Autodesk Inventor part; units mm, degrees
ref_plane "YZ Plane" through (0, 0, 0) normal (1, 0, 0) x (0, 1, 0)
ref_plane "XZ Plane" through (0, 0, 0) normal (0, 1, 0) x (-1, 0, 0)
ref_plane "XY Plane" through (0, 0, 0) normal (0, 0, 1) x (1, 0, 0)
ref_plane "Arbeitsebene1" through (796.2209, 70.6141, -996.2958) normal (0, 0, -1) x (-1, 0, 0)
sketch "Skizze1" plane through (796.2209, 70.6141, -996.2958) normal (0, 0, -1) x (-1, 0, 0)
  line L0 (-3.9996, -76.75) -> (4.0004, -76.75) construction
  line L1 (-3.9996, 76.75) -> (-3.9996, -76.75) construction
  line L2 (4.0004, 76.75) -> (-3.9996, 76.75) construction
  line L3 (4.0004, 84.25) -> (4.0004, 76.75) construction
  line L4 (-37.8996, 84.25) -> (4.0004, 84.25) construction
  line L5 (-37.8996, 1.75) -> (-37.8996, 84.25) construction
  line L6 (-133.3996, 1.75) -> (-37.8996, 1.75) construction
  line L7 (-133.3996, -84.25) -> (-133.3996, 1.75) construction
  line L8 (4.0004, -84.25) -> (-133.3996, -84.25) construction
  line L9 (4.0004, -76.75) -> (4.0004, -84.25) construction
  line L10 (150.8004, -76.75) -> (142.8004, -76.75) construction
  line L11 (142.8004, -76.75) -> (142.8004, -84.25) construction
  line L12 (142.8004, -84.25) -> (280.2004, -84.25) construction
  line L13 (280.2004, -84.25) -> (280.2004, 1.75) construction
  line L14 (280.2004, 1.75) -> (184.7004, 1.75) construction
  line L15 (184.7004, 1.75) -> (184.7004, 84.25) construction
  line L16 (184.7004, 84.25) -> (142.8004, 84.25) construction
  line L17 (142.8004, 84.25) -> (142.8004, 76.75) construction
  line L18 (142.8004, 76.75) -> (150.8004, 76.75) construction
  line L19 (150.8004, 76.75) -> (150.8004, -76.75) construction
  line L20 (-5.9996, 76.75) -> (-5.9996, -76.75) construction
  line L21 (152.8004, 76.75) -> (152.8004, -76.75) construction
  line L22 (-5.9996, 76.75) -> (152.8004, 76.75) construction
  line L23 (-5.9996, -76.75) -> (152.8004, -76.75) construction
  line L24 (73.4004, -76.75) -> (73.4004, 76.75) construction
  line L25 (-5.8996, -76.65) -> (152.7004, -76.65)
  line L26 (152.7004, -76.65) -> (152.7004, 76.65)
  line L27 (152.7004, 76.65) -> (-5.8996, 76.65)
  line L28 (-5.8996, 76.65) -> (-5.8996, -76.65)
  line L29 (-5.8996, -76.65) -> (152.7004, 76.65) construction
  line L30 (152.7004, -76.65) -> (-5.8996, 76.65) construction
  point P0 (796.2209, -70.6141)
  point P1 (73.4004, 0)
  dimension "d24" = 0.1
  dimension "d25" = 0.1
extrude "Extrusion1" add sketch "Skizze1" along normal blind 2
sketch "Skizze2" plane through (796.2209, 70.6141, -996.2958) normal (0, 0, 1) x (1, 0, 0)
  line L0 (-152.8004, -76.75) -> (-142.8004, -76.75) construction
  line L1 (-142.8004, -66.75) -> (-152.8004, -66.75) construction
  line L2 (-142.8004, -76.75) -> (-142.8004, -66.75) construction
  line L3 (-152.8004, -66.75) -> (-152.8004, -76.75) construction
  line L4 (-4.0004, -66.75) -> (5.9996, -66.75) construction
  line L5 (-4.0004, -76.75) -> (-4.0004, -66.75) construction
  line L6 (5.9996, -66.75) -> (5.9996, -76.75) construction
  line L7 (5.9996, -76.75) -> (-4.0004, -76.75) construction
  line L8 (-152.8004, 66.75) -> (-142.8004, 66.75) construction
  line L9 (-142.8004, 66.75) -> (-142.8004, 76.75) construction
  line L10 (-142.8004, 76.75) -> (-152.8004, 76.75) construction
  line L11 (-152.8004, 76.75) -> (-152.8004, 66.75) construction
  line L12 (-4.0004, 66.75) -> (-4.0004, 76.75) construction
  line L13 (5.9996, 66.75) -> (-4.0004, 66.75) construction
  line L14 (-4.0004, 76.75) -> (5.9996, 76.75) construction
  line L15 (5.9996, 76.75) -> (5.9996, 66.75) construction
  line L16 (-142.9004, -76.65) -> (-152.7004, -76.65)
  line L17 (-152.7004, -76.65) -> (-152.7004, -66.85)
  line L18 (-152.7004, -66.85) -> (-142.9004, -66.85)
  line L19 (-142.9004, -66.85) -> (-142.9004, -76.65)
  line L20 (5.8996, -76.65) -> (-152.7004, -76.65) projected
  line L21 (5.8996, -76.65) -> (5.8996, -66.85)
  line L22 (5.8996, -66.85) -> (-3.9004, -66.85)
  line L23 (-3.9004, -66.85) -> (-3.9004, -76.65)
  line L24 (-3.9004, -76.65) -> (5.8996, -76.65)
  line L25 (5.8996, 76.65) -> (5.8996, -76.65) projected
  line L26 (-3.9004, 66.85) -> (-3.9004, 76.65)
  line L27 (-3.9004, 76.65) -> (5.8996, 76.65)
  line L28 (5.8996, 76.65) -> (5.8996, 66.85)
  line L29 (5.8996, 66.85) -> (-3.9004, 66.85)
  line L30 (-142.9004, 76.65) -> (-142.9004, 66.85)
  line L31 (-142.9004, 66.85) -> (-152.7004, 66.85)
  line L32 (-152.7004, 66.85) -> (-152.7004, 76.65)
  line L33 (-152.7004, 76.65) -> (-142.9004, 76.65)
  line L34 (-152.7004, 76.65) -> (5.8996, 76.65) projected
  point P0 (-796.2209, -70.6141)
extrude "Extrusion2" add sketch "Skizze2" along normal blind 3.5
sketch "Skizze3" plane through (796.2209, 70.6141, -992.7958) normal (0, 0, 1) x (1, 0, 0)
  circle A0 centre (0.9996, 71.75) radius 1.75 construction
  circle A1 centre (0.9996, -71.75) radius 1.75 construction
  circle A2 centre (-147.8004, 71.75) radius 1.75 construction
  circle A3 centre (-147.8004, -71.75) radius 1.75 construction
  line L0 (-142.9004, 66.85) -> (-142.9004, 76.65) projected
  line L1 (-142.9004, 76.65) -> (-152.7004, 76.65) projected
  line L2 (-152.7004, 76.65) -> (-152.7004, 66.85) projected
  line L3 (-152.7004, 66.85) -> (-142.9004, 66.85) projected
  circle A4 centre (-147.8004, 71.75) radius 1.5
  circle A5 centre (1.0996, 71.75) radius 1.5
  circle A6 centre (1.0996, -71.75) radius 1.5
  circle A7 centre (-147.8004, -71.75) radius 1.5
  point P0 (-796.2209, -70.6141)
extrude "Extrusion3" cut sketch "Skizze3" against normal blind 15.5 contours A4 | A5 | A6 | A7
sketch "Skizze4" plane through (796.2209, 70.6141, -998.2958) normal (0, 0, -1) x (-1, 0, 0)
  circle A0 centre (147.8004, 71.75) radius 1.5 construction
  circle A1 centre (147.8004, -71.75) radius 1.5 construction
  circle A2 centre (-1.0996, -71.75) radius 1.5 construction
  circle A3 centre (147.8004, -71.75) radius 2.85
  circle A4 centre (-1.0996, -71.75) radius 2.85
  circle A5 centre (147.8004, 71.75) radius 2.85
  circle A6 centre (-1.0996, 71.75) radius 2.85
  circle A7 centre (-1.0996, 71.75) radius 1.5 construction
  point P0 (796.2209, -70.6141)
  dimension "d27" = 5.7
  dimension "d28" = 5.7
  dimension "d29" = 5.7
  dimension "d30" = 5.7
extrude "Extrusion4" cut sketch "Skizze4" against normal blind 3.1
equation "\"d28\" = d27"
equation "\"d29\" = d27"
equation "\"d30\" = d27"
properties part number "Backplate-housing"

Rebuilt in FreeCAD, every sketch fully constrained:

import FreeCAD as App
import Part
import Sketcher

doc = App.newDocument("Part")
body = doc.addObject("PartDesign::Body", "Body")

# Sketch on XY plane
sketch1 = body.newObject("Sketcher::SketchObject", "Sketch")
sketch1.AttachmentSupport = (doc.getObject("XY_Plane"), [""])
sketch1.MapMode = "FlatFace"
sketch1.AttachmentOffset = App.Placement(App.Vector(0, 0, -996.2958), App.Rotation())
sketch1.addGeometry([
    Part.LineSegment(App.Vector(802, 147, 0), App.Vector(802, -6, 0)),
    Part.LineSegment(App.Vector(802, -6, 0), App.Vector(644, -6, 0)),
    Part.LineSegment(App.Vector(644, -6, 0), App.Vector(644, 147, 0)),
    Part.LineSegment(App.Vector(644, 147, 0), App.Vector(802, 147, 0)),
], False)
sketch1.addConstraint([
    Sketcher.Constraint("Coincident", 0, 2, 1, 1),
    Sketcher.Constraint("Coincident", 1, 2, 2, 1),
    Sketcher.Constraint("Coincident", 2, 2, 3, 1),
    Sketcher.Constraint("Coincident", 3, 2, 0, 1),
    Sketcher.Constraint("Vertical", 0),
    Sketcher.Constraint("Horizontal", 1),
    Sketcher.Constraint("Vertical", 2),
    Sketcher.Constraint("Horizontal", 3),
    Sketcher.Constraint("DistanceX", 1, 2, 1, 1, 158.6),
    Sketcher.Constraint("DistanceY", 0, 2, 0, 1, 153.3),
    Sketcher.Constraint("DistanceY", 0, 2, -1, 1, 6.036),
    Sketcher.Constraint("DistanceX", -1, 1, 0, 2, 802.1205),
])
pad1 = body.newObject("PartDesign::Pad", "Pad")
pad1.Profile = sketch1
pad1.Length = 2
pad1.Reversed = True

# Sketch on XY plane
sketch2 = body.newObject("Sketcher::SketchObject", "Sketch001")
sketch2.AttachmentSupport = (doc.getObject("XY_Plane"), [""])
sketch2.MapMode = "FlatFace"
sketch2.AttachmentOffset = App.Placement(App.Vector(0, 0, -996.2958), App.Rotation())
sketch2.addGeometry([
    Part.LineSegment(App.Vector(644, -6, 0), App.Vector(653, -6, 0)),  # 0
    Part.LineSegment(App.Vector(653, -6, 0), App.Vector(653, 4, 0)),  # 1
    Part.LineSegment(App.Vector(653, 4, 0), App.Vector(644, 4, 0)),  # 2
    Part.LineSegment(App.Vector(644, 4, 0), App.Vector(644, -6, 0)),  # 3
    Part.LineSegment(App.Vector(653, 137, 0), App.Vector(653, 147, 0)),  # 4
    Part.LineSegment(App.Vector(653, 147, 0), App.Vector(644, 147, 0)),  # 5
    Part.LineSegment(App.Vector(644, 147, 0), App.Vector(644, 137, 0)),  # 6
    Part.LineSegment(App.Vector(644, 137, 0), App.Vector(653, 137, 0)),  # 7
    Part.LineSegment(App.Vector(792, 137, 0), App.Vector(802, 137, 0)),  # 8
    Part.LineSegment(App.Vector(802, 137, 0), App.Vector(802, 147, 0)),  # 9
    Part.LineSegment(App.Vector(802, 147, 0), App.Vector(792, 147, 0)),  # 10
    Part.LineSegment(App.Vector(792, 147, 0), App.Vector(792, 137, 0)),  # 11
    Part.LineSegment(App.Vector(792, 4, 0), App.Vector(792, -6, 0)),  # 12
    Part.LineSegment(App.Vector(792, -6, 0), App.Vector(802, -6, 0)),  # 13
    Part.LineSegment(App.Vector(802, -6, 0), App.Vector(802, 4, 0)),  # 14
    Part.LineSegment(App.Vector(802, 4, 0), App.Vector(792, 4, 0)),  # 15
], False)
sketch2.addConstraint([
    Sketcher.Constraint("Coincident", 0, 2, 1, 1),
    Sketcher.Constraint("Coincident", 1, 2, 2, 1),
    Sketcher.Constraint("Coincident", 2, 2, 3, 1),
    Sketcher.Constraint("Coincident", 3, 2, 0, 1),
    Sketcher.Constraint("Coincident", 4, 2, 5, 1),
    Sketcher.Constraint("Coincident", 5, 2, 6, 1),
    Sketcher.Constraint("Coincident", 6, 2, 7, 1),
    Sketcher.Constraint("Coincident", 7, 2, 4, 1),
    Sketcher.Constraint("Coincident", 8, 2, 9, 1),
    Sketcher.Constraint("Coincident", 9, 2, 10, 1),
    Sketcher.Constraint("Coincident", 10, 2, 11, 1),
    Sketcher.Constraint("Coincident", 11, 2, 8, 1),
    Sketcher.Constraint("Coincident", 12, 2, 13, 1),
    Sketcher.Constraint("Coincident", 13, 2, 14, 1),
    Sketcher.Constraint("Coincident", 14, 2, 15, 1),
    Sketcher.Constraint("Coincident", 15, 2, 12, 1),
    Sketcher.Constraint("Horizontal", 0),
    Sketcher.Constraint("Vertical", 1),
    Sketcher.Constraint("Horizontal", 2),
    Sketcher.Constraint("Vertical", 3),
    Sketcher.Constraint("Vertical", 4),
    Sketcher.Constraint("Horizontal", 5),
    Sketcher.Constraint("Vertical", 6),
    Sketcher.Constraint("Horizontal", 7),
    Sketcher.Constraint("Horizontal", 8),
    Sketcher.Constraint("Vertical", 9),
    Sketcher.Constraint("Horizontal", 10),
    Sketcher.Constraint("Vertical", 11),
    Sketcher.Constraint("Vertical", 12),
    Sketcher.Constraint("Horizontal", 13),
    Sketcher.Constraint("Vertical", 14),
    Sketcher.Constraint("Horizontal", 15),
    Sketcher.Constraint("Horizontal", 7, 2, 8, 2),
    Sketcher.Constraint("Horizontal", 5, 2, 9, 2),
    Sketcher.Constraint("Horizontal", 3, 2, 12, 2),
    Sketcher.Constraint("Horizontal", 2, 2, 14, 2),
    Sketcher.Constraint("Vertical", 1, 2, 4, 2),
    Sketcher.Constraint("Vertical", 3, 2, 5, 2),
    Sketcher.Constraint("Vertical", 11, 2, 12, 2),
    Sketcher.Constraint("Vertical", 9, 2, 13, 2),
    Sketcher.Constraint("Equal", 7, 8),
    Sketcher.Constraint("Equal", 15, 1),
    Sketcher.Constraint("Equal", 3, 4),
    Sketcher.Constraint("DistanceX", 0, 1, 0, 2, 9.8),
    Sketcher.Constraint("DistanceX", 4, 2, 10, 2, 139.0),
    Sketcher.Constraint("DistanceY", 1, 2, 4, 2, 143.5),
    Sketcher.Constraint("DistanceY", 0, 2, -1, 1, 6.036),
    Sketcher.Constraint("DistanceX", -1, 1, 0, 2, 653.3205),
])
pad2 = body.newObject("PartDesign::Pad", "Pad001")
pad2.Profile = sketch2
pad2.Length = 3.5

# Sketch on XY plane
sketch3 = body.newObject("Sketcher::SketchObject", "Sketch002")
sketch3.AttachmentSupport = (doc.getObject("XY_Plane"), [""])
sketch3.MapMode = "FlatFace"
sketch3.AttachmentOffset = App.Placement(App.Vector(0, 0, -992.7958), App.Rotation())
sketch3.addGeometry([
    Part.Circle(App.Vector(648.4, 142.4, 0), App.Vector(0, 0, 1), 1.5),
    Part.Circle(App.Vector(797.3, 142.4, 0), App.Vector(0, 0, 1), 1.5),
    Part.Circle(App.Vector(797.3, -1.1, 0), App.Vector(0, 0, 1), 1.5),
    Part.Circle(App.Vector(648.4, -1.1, 0), App.Vector(0, 0, 1), 1.5),
], False)
sketch3.addConstraint([
    Sketcher.Constraint("Equal", 0, 1),
    Sketcher.Constraint("Equal", 1, 2),
    Sketcher.Constraint("Equal", 2, 3),
    Sketcher.Constraint("Horizontal", 0, 3, 1, 3),
    Sketcher.Constraint("Horizontal", 2, 3, 3, 3),
    Sketcher.Constraint("Vertical", 1, 3, 2, 3),
    Sketcher.Constraint("Vertical", 0, 3, 3, 3),
    Sketcher.Constraint("Diameter", 0, 3.0),
    Sketcher.Constraint("DistanceX", 0, 3, 1, 3, 148.9),
    Sketcher.Constraint("DistanceY", 2, 3, 1, 3, 143.5),
    Sketcher.Constraint("DistanceY", -1, 1, 0, 3, 142.364),
    Sketcher.Constraint("DistanceX", -1, 1, 0, 3, 648.4205),
])
pocket1 = body.newObject("PartDesign::Pocket", "Pocket")
pocket1.Profile = sketch3
pocket1.Length = 15.5

# Sketch on XY plane
sketch4 = body.newObject("Sketcher::SketchObject", "Sketch003")
sketch4.AttachmentSupport = (doc.getObject("XY_Plane"), [""])
sketch4.MapMode = "FlatFace"
sketch4.AttachmentOffset = App.Placement(App.Vector(0, 0, -998.2958), App.Rotation())
sketch4.addGeometry([
    Part.Circle(App.Vector(648.4, -1.1, 0), App.Vector(0, 0, 1), 2.9),
    Part.Circle(App.Vector(797.3, -1.1, 0), App.Vector(0, 0, 1), 2.9),
    Part.Circle(App.Vector(648.4, 142.4, 0), App.Vector(0, 0, 1), 2.9),
    Part.Circle(App.Vector(797.3, 142.4, 0), App.Vector(0, 0, 1), 2.9),
], False)
sketch4.addConstraint([
    Sketcher.Constraint("Equal", 0, 1),
    Sketcher.Constraint("Equal", 1, 2),
    Sketcher.Constraint("Equal", 2, 3),
    Sketcher.Constraint("Horizontal", 0, 3, 1, 3),
    Sketcher.Constraint("Horizontal", 2, 3, 3, 3),
    Sketcher.Constraint("Vertical", 0, 3, 2, 3),
    Sketcher.Constraint("Vertical", 1, 3, 3, 3),
    Sketcher.Constraint("Diameter", 0, 5.7),
    Sketcher.Constraint("DistanceX", 0, 3, 1, 3, 148.9),
    Sketcher.Constraint("DistanceY", 0, 3, 2, 3, 143.5),
    Sketcher.Constraint("DistanceY", 0, 3, -1, 1, 1.136),
    Sketcher.Constraint("DistanceX", -1, 1, 0, 3, 648.4205),
])
pocket2 = body.newObject("PartDesign::Pocket", "Pocket001")
pocket2.Profile = sketch4
pocket2.Length = 3.1
pocket2.Reversed = True

doc.recompute()
